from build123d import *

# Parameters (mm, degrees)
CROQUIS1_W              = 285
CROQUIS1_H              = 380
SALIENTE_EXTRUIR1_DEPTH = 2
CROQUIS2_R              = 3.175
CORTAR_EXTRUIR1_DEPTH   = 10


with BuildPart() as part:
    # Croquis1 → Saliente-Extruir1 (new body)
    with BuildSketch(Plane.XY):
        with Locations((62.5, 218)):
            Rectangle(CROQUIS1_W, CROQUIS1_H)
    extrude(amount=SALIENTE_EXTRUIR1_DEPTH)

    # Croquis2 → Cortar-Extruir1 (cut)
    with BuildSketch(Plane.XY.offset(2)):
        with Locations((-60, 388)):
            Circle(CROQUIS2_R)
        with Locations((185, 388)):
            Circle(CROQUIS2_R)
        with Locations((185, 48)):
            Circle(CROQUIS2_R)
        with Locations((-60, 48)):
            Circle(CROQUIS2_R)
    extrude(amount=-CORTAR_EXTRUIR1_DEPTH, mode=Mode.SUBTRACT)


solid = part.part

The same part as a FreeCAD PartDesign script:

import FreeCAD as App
import Part
import Sketcher
from FreeCAD import Vector


def add_polygon(sketch, points):
    """Adds a closed chain of lines whose ends are joined by coincident constraints."""
    first, n = sketch.GeometryCount, len(points)
    for a, b in zip(points, points[1:] + points[:1]):
        sketch.addGeometry(Part.LineSegment(App.Vector(*a, 0), App.Vector(*b, 0)), False)
    for i in range(n):
        sketch.addConstraint(Sketcher.Constraint("Coincident", first + i, 2, first + (i + 1) % n, 1))

doc = App.newDocument("Part")
body = doc.addObject("PartDesign::Body", "Body")

# Sketch on XY plane
sketch1 = body.newObject("Sketcher::SketchObject", "Sketch")
sketch1.AttachmentSupport = (doc.getObject("XY_Plane"), [""])
sketch1.MapMode = "FlatFace"
add_polygon(sketch1, [(-80, 408), (-80, 28), (205, 28), (205, 408)])  # lines 0-3
sketch1.addConstraint([
    Sketcher.Constraint("Vertical", 0),
    Sketcher.Constraint("Horizontal", 1),
    Sketcher.Constraint("Vertical", 2),
    Sketcher.Constraint("Horizontal", 3),
    Sketcher.Constraint("DistanceX", 1, 1, 1, 2, 285.0),
    Sketcher.Constraint("DistanceY", 0, 2, 0, 1, 380.0),
    Sketcher.Constraint("DistanceX", 0, 2, -1, 1, 80.0),
    Sketcher.Constraint("DistanceY", -1, 1, 0, 2, 28.0),
])
pad1 = body.newObject("PartDesign::Pad", "Pad")
pad1.Profile = sketch1
pad1.Length = 2

# Sketch on XY plane
sketch2 = body.newObject("Sketcher::SketchObject", "Sketch001")
sketch2.AttachmentSupport = (doc.getObject("XY_Plane"), [""])
sketch2.MapMode = "FlatFace"
sketch2.AttachmentOffset = App.Placement(Vector(0, 0, 2), App.Rotation())
sketch2.addGeometry([
    Part.Circle(Vector(-60, 388, 0), Vector(0, 0, 1), 3.2),
    Part.Circle(Vector(185, 388, 0), Vector(0, 0, 1), 3.2),
    Part.Circle(Vector(185, 48, 0), Vector(0, 0, 1), 3.2),
    Part.Circle(Vector(-60, 48, 0), Vector(0, 0, 1), 3.2),
], False)
sketch2.addConstraint([
    Sketcher.Constraint("Equal", 0, 1),
    Sketcher.Constraint("Equal", 1, 2),
    Sketcher.Constraint("Equal", 2, 3),
    Sketcher.Constraint("Horizontal", 0, 3, 1, 3),
    Sketcher.Constraint("Horizontal", 2, 3, 3, 3),
    Sketcher.Constraint("Vertical", 1, 3, 2, 3),
    Sketcher.Constraint("Vertical", 0, 3, 3, 3),
    Sketcher.Constraint("Diameter", 0, 6.35),
    Sketcher.Constraint("DistanceX", 0, 3, -1, 1, 60.0),
    Sketcher.Constraint("DistanceY", -1, 1, 0, 3, 388.0),
    Sketcher.Constraint("DistanceX", -1, 1, 1, 3, 185.0),
    Sketcher.Constraint("DistanceY", -1, 1, 2, 3, 48.0),
])
pocket1 = body.newObject("PartDesign::Pocket", "Pocket")
pocket1.Profile = sketch2
pocket1.Length = 10

doc.recompute()
